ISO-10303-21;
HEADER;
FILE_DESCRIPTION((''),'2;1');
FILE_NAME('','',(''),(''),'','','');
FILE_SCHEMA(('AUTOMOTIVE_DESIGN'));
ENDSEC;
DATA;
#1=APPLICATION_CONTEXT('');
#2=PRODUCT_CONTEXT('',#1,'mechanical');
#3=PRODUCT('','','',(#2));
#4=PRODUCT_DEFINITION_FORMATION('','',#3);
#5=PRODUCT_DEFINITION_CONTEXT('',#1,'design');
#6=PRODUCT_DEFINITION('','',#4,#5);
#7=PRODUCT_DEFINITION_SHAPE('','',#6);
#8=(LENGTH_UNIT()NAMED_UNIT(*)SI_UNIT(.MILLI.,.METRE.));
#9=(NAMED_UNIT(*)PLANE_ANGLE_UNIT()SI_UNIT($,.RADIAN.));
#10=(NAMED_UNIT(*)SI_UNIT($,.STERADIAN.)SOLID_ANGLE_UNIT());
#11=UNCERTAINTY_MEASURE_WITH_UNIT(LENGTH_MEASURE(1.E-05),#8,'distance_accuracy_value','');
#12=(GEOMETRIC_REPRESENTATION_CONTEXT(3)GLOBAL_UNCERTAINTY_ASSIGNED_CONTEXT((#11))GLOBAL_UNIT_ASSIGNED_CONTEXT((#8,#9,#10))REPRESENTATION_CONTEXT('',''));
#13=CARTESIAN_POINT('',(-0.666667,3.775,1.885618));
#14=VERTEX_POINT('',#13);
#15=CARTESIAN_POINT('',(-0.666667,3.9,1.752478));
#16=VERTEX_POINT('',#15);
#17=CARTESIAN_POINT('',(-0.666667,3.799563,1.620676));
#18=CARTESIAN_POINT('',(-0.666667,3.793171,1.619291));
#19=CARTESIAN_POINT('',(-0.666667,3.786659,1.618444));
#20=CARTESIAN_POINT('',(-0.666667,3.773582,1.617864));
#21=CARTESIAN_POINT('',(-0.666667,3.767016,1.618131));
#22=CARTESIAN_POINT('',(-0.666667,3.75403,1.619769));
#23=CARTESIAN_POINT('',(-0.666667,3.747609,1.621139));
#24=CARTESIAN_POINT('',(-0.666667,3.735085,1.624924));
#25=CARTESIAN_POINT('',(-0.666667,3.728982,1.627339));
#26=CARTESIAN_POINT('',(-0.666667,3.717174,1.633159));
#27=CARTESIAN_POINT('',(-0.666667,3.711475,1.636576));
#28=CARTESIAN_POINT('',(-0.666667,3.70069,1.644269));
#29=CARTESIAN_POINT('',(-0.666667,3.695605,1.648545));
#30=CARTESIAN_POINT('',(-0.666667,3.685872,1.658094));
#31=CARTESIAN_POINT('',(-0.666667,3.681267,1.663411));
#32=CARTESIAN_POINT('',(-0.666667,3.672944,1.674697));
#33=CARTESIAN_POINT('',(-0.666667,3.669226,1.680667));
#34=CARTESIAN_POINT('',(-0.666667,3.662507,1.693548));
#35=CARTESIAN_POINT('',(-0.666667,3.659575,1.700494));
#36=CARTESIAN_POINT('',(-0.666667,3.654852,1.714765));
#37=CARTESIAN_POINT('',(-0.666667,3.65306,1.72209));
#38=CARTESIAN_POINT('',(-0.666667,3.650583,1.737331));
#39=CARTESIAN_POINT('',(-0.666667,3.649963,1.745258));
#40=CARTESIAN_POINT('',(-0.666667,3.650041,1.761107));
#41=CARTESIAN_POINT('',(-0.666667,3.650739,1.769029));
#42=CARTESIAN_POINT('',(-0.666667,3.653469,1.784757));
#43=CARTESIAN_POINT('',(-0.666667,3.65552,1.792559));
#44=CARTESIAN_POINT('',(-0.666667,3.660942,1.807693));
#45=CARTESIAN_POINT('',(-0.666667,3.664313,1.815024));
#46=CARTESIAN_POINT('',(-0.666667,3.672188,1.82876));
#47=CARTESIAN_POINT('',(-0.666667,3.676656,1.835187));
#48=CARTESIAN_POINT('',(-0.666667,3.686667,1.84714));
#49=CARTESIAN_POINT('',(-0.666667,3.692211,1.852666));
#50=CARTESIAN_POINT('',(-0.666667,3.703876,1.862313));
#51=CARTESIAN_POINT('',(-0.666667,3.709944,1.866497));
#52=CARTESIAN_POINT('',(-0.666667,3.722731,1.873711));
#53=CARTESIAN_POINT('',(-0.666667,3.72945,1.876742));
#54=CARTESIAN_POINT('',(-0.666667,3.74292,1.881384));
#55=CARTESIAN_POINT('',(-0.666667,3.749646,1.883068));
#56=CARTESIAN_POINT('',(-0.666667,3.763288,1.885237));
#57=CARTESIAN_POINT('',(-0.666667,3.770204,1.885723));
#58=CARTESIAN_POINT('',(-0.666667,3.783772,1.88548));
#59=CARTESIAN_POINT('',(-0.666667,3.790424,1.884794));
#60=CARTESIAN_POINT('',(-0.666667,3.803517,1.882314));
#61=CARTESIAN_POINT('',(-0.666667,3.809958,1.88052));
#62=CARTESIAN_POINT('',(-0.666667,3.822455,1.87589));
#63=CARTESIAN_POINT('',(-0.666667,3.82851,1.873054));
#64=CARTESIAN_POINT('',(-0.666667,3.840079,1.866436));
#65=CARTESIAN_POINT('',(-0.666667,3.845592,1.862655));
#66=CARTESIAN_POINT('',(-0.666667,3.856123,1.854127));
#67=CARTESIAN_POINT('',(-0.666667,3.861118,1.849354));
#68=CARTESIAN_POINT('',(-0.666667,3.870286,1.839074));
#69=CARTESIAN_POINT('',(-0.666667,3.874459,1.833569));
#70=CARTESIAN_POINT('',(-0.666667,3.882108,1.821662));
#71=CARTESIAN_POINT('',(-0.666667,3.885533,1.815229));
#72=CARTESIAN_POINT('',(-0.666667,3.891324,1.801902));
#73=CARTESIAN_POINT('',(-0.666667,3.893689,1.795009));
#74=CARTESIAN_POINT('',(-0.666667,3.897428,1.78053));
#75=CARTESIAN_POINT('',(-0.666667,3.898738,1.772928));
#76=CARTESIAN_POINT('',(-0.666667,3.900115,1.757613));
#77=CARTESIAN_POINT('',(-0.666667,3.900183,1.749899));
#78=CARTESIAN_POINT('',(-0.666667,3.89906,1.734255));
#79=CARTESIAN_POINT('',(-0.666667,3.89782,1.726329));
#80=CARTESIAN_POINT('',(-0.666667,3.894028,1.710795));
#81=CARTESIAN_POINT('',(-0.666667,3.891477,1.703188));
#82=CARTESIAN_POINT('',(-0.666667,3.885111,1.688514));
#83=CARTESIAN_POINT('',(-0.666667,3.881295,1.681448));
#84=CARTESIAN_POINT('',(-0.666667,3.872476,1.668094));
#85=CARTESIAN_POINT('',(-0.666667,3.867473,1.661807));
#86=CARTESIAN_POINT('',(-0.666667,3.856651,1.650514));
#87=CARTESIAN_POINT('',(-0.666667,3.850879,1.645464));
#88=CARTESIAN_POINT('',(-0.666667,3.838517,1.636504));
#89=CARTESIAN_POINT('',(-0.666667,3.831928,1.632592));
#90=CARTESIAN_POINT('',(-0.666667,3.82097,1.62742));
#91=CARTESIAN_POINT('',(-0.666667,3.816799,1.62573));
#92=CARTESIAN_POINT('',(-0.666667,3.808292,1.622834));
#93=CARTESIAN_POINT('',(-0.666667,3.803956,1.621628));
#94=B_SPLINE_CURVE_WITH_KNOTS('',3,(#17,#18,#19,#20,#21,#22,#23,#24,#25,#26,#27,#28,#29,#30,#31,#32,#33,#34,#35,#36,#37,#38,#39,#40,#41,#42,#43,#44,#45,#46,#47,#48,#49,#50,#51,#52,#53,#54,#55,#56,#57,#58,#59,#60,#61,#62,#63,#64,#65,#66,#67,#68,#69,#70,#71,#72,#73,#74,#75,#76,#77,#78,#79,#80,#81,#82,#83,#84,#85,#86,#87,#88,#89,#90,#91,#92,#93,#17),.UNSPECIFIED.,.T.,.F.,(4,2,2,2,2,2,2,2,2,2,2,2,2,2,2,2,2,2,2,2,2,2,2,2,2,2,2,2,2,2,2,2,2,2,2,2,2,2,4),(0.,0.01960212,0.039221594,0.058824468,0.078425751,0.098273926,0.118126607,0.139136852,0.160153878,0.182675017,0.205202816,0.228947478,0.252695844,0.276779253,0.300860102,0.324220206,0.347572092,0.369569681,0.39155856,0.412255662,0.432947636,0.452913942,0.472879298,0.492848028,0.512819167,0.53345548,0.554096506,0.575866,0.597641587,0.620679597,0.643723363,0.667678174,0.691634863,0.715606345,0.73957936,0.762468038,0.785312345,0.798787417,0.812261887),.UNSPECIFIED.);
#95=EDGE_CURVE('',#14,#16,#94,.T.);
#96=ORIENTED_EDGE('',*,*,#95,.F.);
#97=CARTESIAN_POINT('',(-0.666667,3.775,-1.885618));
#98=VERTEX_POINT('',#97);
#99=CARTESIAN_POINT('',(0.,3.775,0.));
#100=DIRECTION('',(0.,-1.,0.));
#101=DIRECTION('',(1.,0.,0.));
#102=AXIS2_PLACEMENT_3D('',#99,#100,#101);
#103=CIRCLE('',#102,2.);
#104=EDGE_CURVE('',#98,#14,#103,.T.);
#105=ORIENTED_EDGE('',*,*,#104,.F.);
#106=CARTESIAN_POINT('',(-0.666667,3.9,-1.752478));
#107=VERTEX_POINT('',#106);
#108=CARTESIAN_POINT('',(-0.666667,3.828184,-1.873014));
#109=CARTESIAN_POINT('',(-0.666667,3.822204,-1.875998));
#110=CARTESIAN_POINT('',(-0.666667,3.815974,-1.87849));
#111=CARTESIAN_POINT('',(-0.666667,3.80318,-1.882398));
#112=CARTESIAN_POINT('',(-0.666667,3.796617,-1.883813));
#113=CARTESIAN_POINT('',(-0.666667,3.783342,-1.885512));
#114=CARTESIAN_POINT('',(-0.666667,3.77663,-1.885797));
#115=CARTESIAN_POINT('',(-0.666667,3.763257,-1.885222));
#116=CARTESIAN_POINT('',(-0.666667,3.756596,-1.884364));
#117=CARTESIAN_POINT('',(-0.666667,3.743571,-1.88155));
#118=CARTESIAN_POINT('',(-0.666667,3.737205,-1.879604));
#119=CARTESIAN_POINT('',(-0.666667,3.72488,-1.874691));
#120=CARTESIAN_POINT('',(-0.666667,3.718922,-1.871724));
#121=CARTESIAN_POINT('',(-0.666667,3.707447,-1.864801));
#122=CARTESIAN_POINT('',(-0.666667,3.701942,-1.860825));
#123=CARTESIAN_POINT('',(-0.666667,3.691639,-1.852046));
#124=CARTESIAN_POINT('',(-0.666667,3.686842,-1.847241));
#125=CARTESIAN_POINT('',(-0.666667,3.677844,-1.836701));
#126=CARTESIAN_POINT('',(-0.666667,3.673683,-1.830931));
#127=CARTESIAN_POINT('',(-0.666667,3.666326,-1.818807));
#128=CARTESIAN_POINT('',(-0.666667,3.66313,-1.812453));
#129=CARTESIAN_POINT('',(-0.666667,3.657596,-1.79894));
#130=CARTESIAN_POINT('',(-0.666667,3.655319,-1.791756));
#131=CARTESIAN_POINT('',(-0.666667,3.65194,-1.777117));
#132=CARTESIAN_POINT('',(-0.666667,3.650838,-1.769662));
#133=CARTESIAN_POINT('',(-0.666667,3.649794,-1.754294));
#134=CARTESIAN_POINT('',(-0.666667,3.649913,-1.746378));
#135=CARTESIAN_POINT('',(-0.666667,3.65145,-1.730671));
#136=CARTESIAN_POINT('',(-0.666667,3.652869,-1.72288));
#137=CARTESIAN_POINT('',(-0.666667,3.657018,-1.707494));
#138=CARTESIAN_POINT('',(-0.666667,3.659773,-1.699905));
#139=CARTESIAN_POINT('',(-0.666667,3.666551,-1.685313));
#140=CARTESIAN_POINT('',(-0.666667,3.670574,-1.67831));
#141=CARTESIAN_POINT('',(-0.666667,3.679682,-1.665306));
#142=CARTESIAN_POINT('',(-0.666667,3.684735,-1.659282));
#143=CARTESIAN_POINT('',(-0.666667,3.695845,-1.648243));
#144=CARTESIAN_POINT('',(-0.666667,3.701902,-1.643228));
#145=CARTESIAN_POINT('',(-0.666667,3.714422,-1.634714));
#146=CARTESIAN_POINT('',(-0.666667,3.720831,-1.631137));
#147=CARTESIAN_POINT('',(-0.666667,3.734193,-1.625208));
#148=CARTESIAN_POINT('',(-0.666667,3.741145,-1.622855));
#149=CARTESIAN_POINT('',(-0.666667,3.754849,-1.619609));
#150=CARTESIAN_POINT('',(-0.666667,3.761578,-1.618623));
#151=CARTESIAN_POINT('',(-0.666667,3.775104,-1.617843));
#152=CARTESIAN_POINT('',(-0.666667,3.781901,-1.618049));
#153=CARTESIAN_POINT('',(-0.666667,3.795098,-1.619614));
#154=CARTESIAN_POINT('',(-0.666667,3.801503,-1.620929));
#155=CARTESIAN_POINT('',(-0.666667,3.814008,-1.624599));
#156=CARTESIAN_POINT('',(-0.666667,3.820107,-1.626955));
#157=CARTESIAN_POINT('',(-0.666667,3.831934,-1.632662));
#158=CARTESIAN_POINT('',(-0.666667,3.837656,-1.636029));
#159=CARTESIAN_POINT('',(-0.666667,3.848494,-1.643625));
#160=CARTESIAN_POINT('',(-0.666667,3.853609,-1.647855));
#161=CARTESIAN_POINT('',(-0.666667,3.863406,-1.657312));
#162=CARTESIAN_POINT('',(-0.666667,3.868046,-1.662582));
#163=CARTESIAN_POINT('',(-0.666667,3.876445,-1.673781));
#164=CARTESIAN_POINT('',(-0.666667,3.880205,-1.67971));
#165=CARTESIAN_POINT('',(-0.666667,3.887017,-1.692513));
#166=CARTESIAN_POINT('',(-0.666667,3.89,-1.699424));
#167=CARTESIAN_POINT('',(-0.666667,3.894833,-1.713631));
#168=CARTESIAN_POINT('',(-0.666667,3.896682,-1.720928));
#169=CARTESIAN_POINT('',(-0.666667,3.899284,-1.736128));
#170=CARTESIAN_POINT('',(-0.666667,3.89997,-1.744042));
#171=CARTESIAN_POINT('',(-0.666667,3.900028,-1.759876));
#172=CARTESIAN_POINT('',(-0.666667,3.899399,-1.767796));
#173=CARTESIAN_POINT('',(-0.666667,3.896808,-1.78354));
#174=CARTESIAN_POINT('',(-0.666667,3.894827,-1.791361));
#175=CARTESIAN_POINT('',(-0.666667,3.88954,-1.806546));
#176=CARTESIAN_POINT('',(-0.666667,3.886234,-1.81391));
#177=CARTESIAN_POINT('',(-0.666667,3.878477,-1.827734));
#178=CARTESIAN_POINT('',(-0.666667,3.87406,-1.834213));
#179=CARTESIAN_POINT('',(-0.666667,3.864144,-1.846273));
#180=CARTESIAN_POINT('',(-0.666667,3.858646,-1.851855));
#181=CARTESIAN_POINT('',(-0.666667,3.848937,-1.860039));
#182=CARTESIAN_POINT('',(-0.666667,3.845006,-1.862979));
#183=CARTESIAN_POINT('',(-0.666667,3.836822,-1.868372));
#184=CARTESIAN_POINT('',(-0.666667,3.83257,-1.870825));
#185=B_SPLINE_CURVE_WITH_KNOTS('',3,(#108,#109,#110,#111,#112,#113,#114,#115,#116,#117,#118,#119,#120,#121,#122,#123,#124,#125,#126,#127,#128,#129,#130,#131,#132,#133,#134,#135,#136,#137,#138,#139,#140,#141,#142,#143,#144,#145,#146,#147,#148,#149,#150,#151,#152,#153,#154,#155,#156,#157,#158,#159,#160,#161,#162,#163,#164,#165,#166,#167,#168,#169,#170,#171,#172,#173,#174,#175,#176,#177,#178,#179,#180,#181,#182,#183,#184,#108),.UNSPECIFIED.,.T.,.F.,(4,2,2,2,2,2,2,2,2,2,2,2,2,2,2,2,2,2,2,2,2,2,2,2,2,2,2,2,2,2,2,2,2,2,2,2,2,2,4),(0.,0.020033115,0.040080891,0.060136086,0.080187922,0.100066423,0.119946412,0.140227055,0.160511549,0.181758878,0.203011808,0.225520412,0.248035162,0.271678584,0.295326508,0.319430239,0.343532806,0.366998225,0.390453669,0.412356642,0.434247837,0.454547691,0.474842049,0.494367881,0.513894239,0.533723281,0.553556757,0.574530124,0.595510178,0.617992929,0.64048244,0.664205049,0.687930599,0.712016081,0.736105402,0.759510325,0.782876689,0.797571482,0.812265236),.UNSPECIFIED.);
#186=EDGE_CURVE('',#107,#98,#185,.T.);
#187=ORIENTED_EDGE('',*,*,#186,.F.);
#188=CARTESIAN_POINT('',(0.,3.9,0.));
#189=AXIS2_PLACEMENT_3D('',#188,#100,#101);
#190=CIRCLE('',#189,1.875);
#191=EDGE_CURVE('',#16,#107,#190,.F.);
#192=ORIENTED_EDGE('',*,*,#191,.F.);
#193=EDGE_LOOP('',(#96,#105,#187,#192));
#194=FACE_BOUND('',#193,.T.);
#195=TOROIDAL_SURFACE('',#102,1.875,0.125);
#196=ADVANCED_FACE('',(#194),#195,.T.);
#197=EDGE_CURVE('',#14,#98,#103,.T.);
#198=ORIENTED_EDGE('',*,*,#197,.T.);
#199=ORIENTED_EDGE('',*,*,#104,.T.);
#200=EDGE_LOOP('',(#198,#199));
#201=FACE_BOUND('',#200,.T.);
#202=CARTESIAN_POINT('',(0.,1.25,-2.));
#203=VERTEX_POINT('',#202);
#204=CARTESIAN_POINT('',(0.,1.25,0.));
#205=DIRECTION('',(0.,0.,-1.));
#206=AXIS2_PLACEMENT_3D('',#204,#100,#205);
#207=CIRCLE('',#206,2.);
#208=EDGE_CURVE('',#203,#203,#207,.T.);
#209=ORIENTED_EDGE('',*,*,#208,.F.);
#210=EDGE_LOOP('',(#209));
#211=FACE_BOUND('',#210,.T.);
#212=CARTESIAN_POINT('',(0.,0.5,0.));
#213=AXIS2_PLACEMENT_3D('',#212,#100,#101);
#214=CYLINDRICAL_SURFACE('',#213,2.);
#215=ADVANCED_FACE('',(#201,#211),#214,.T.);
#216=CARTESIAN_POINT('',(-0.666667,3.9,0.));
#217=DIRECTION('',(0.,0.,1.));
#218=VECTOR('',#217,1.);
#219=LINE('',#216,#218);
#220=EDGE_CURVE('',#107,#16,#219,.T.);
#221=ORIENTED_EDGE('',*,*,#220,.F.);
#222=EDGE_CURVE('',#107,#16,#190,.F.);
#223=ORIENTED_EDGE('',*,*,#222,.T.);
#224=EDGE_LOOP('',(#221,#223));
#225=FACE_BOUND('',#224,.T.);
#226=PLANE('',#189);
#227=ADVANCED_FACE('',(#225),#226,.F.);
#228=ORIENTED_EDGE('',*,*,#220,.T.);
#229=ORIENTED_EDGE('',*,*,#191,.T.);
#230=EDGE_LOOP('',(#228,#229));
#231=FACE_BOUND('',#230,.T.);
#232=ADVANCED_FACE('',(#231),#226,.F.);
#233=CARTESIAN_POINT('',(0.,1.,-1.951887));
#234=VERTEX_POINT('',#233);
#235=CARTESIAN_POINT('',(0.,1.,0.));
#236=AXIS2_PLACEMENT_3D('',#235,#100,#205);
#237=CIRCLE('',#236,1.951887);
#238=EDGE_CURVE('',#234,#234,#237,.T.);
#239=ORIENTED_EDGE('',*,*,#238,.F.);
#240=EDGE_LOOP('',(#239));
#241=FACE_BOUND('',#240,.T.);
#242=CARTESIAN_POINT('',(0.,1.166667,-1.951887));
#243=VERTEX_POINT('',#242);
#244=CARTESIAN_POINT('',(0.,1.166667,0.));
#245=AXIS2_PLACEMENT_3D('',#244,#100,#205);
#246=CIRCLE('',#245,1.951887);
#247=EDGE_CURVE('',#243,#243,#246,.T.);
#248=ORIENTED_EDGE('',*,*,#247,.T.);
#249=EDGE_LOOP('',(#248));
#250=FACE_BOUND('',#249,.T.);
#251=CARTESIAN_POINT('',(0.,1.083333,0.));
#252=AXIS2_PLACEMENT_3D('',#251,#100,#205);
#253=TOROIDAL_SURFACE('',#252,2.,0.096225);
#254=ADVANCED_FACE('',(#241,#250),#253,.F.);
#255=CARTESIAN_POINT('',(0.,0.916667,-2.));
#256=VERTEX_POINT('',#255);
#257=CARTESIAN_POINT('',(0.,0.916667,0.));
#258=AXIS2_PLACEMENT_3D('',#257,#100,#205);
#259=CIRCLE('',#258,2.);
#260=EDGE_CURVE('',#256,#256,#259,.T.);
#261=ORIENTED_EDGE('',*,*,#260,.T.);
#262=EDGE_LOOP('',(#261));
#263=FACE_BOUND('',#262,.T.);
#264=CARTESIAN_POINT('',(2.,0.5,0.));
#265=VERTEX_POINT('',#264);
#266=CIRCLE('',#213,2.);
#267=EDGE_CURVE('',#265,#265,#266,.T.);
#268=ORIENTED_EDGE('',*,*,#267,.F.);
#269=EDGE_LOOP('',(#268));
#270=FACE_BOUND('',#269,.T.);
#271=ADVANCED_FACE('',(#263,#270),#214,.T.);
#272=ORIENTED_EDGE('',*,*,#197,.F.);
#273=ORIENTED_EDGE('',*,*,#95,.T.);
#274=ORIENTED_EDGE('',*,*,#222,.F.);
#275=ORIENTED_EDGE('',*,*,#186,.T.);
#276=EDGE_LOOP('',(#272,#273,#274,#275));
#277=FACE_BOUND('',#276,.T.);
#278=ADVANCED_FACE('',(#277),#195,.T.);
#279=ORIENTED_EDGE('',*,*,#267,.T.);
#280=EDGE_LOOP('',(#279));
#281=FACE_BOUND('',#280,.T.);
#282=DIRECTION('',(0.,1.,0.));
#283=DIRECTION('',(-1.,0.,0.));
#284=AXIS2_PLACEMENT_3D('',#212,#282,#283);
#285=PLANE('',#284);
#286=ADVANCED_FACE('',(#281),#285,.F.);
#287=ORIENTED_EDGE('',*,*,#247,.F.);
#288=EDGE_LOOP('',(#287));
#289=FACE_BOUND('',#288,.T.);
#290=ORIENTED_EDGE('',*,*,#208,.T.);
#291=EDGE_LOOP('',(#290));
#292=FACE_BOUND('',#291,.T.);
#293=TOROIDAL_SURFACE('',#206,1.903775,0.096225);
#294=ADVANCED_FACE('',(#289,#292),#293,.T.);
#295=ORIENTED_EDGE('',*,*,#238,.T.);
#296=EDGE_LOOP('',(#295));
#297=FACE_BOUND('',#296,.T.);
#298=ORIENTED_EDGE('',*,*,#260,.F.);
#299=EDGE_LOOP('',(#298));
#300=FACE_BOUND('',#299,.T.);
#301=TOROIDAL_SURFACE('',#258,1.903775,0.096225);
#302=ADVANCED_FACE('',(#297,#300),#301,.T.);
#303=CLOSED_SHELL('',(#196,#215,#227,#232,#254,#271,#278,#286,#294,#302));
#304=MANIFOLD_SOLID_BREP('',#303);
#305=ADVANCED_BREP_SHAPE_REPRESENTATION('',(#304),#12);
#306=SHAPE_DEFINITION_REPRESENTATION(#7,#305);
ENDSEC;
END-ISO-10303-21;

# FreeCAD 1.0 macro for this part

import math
import FreeCAD as App
import Part
import Sketcher
from FreeCAD import Vector


def edges_at(feature, points):
    """Names of the edges that pass closest to the given points."""
    edges = feature.Shape.Edges
    near = lambda p: min(range(len(edges)), key=lambda i: edges[i].distToShape(Part.Vertex(*p))[0])
    return sorted({f"Edge{near(p) + 1}" for p in points})


def add_polygon(sketch, points):
    """Adds a closed chain of lines whose ends are joined by coincident constraints."""
    first, n = sketch.GeometryCount, len(points)
    for a, b in zip(points, points[1:] + points[:1]):
        sketch.addGeometry(Part.LineSegment(App.Vector(*a, 0), App.Vector(*b, 0)), False)
    for i in range(n):
        sketch.addConstraint(Sketcher.Constraint("Coincident", first + i, 2, first + (i + 1) % n, 1))

doc = App.newDocument("Part")
body = doc.addObject("PartDesign::Body", "Body")

# Sketch on XY plane
sketch1 = doc.addObject("Sketcher::SketchObject", "Sketch")
body.addObject(sketch1)
sketch1.AttachmentSupport = (doc.XY_Plane, [""])
sketch1.MapMode = "FlatFace"
add_polygon(sketch1, [(-2, 3.9), (-2, 0.5), (0, 0.5), (0, 3.9)])  # lines 0-3
sketch1.addConstraint([
    Sketcher.Constraint("Vertical", 0),
    Sketcher.Constraint("Horizontal", 1),
    Sketcher.Constraint("Vertical", 2),
    Sketcher.Constraint("Horizontal", 3),
    Sketcher.Constraint("PointOnObject", 1, 2, -2),
    Sketcher.Constraint("DistanceX", 1, 1, 1, 2, 2.0),
    Sketcher.Constraint("DistanceY", 0, 2, 0, 1, 3.4),
    Sketcher.Constraint("DistanceY", -1, 1, 0, 2, 0.5),
])
revolution = doc.addObject("PartDesign::Revolution", "Revolution")
body.addObject(revolution)
revolution.Profile = sketch1
revolution.ReferenceAxis = (sketch1, ["V_Axis"])
revolution.Angle = 360

# Sketch on XY plane
sketch2 = doc.addObject("Sketcher::SketchObject", "Sketch001")
body.addObject(sketch2)
sketch2.AttachmentSupport = (doc.XY_Plane, [""])
sketch2.MapMode = "FlatFace"
sketch2.addGeometry([
    Part.LineSegment(Vector(-2, 1.25, 0), Vector(-2, 0.92, 0)),
    Part.ArcOfCircle(Part.Circle(Vector(-1.9, 0.92, 0), Vector(0, 0, 1), 0.1), math.radians(120), math.radians(180)),
    Part.ArcOfCircle(Part.Circle(Vector(-2, 1.08, 0), Vector(0, 0, 1), 0.1), math.radians(-60), math.radians(60)),
    Part.ArcOfCircle(Part.Circle(Vector(-1.9, 1.25, 0), Vector(0, 0, 1), 0.1), math.radians(-180), math.radians(-120)),
], False)
sketch2.addConstraint([
    Sketcher.Constraint("Tangent", 0, 2, 1, 2),
    Sketcher.Constraint("Tangent", 1, 1, 2, 1),
    Sketcher.Constraint("Tangent", 2, 2, 3, 2),
    Sketcher.Constraint("Tangent", 3, 1, 0, 1),
    Sketcher.Constraint("Vertical", 0),
    Sketcher.Constraint("Equal", 1, 2),
    Sketcher.Constraint("Equal", 2, 3),
    Sketcher.Constraint("Vertical", 2, 3, 0, 2),
    Sketcher.Constraint("DistanceX", 2, 3, -1, 1, 2.0),
    Sketcher.Constraint("DistanceY", -1, 1, 1, 1, 1.0),
    Sketcher.Constraint("DistanceY", -1, 1, 3, 3, 1.25),
])
groove = doc.addObject("PartDesign::Groove", "Groove")
body.addObject(groove)
groove.Profile = sketch2
groove.ReferenceAxis = (sketch2, ["V_Axis"])
groove.Angle = 360
doc.recompute()

fillet = doc.addObject("PartDesign::Fillet", "Fillet")
body.addObject(fillet)
fillet.Base = (groove, edges_at(groove, [(2, 3.9, 0)]))
fillet.Radius = 0.125

doc.recompute()
